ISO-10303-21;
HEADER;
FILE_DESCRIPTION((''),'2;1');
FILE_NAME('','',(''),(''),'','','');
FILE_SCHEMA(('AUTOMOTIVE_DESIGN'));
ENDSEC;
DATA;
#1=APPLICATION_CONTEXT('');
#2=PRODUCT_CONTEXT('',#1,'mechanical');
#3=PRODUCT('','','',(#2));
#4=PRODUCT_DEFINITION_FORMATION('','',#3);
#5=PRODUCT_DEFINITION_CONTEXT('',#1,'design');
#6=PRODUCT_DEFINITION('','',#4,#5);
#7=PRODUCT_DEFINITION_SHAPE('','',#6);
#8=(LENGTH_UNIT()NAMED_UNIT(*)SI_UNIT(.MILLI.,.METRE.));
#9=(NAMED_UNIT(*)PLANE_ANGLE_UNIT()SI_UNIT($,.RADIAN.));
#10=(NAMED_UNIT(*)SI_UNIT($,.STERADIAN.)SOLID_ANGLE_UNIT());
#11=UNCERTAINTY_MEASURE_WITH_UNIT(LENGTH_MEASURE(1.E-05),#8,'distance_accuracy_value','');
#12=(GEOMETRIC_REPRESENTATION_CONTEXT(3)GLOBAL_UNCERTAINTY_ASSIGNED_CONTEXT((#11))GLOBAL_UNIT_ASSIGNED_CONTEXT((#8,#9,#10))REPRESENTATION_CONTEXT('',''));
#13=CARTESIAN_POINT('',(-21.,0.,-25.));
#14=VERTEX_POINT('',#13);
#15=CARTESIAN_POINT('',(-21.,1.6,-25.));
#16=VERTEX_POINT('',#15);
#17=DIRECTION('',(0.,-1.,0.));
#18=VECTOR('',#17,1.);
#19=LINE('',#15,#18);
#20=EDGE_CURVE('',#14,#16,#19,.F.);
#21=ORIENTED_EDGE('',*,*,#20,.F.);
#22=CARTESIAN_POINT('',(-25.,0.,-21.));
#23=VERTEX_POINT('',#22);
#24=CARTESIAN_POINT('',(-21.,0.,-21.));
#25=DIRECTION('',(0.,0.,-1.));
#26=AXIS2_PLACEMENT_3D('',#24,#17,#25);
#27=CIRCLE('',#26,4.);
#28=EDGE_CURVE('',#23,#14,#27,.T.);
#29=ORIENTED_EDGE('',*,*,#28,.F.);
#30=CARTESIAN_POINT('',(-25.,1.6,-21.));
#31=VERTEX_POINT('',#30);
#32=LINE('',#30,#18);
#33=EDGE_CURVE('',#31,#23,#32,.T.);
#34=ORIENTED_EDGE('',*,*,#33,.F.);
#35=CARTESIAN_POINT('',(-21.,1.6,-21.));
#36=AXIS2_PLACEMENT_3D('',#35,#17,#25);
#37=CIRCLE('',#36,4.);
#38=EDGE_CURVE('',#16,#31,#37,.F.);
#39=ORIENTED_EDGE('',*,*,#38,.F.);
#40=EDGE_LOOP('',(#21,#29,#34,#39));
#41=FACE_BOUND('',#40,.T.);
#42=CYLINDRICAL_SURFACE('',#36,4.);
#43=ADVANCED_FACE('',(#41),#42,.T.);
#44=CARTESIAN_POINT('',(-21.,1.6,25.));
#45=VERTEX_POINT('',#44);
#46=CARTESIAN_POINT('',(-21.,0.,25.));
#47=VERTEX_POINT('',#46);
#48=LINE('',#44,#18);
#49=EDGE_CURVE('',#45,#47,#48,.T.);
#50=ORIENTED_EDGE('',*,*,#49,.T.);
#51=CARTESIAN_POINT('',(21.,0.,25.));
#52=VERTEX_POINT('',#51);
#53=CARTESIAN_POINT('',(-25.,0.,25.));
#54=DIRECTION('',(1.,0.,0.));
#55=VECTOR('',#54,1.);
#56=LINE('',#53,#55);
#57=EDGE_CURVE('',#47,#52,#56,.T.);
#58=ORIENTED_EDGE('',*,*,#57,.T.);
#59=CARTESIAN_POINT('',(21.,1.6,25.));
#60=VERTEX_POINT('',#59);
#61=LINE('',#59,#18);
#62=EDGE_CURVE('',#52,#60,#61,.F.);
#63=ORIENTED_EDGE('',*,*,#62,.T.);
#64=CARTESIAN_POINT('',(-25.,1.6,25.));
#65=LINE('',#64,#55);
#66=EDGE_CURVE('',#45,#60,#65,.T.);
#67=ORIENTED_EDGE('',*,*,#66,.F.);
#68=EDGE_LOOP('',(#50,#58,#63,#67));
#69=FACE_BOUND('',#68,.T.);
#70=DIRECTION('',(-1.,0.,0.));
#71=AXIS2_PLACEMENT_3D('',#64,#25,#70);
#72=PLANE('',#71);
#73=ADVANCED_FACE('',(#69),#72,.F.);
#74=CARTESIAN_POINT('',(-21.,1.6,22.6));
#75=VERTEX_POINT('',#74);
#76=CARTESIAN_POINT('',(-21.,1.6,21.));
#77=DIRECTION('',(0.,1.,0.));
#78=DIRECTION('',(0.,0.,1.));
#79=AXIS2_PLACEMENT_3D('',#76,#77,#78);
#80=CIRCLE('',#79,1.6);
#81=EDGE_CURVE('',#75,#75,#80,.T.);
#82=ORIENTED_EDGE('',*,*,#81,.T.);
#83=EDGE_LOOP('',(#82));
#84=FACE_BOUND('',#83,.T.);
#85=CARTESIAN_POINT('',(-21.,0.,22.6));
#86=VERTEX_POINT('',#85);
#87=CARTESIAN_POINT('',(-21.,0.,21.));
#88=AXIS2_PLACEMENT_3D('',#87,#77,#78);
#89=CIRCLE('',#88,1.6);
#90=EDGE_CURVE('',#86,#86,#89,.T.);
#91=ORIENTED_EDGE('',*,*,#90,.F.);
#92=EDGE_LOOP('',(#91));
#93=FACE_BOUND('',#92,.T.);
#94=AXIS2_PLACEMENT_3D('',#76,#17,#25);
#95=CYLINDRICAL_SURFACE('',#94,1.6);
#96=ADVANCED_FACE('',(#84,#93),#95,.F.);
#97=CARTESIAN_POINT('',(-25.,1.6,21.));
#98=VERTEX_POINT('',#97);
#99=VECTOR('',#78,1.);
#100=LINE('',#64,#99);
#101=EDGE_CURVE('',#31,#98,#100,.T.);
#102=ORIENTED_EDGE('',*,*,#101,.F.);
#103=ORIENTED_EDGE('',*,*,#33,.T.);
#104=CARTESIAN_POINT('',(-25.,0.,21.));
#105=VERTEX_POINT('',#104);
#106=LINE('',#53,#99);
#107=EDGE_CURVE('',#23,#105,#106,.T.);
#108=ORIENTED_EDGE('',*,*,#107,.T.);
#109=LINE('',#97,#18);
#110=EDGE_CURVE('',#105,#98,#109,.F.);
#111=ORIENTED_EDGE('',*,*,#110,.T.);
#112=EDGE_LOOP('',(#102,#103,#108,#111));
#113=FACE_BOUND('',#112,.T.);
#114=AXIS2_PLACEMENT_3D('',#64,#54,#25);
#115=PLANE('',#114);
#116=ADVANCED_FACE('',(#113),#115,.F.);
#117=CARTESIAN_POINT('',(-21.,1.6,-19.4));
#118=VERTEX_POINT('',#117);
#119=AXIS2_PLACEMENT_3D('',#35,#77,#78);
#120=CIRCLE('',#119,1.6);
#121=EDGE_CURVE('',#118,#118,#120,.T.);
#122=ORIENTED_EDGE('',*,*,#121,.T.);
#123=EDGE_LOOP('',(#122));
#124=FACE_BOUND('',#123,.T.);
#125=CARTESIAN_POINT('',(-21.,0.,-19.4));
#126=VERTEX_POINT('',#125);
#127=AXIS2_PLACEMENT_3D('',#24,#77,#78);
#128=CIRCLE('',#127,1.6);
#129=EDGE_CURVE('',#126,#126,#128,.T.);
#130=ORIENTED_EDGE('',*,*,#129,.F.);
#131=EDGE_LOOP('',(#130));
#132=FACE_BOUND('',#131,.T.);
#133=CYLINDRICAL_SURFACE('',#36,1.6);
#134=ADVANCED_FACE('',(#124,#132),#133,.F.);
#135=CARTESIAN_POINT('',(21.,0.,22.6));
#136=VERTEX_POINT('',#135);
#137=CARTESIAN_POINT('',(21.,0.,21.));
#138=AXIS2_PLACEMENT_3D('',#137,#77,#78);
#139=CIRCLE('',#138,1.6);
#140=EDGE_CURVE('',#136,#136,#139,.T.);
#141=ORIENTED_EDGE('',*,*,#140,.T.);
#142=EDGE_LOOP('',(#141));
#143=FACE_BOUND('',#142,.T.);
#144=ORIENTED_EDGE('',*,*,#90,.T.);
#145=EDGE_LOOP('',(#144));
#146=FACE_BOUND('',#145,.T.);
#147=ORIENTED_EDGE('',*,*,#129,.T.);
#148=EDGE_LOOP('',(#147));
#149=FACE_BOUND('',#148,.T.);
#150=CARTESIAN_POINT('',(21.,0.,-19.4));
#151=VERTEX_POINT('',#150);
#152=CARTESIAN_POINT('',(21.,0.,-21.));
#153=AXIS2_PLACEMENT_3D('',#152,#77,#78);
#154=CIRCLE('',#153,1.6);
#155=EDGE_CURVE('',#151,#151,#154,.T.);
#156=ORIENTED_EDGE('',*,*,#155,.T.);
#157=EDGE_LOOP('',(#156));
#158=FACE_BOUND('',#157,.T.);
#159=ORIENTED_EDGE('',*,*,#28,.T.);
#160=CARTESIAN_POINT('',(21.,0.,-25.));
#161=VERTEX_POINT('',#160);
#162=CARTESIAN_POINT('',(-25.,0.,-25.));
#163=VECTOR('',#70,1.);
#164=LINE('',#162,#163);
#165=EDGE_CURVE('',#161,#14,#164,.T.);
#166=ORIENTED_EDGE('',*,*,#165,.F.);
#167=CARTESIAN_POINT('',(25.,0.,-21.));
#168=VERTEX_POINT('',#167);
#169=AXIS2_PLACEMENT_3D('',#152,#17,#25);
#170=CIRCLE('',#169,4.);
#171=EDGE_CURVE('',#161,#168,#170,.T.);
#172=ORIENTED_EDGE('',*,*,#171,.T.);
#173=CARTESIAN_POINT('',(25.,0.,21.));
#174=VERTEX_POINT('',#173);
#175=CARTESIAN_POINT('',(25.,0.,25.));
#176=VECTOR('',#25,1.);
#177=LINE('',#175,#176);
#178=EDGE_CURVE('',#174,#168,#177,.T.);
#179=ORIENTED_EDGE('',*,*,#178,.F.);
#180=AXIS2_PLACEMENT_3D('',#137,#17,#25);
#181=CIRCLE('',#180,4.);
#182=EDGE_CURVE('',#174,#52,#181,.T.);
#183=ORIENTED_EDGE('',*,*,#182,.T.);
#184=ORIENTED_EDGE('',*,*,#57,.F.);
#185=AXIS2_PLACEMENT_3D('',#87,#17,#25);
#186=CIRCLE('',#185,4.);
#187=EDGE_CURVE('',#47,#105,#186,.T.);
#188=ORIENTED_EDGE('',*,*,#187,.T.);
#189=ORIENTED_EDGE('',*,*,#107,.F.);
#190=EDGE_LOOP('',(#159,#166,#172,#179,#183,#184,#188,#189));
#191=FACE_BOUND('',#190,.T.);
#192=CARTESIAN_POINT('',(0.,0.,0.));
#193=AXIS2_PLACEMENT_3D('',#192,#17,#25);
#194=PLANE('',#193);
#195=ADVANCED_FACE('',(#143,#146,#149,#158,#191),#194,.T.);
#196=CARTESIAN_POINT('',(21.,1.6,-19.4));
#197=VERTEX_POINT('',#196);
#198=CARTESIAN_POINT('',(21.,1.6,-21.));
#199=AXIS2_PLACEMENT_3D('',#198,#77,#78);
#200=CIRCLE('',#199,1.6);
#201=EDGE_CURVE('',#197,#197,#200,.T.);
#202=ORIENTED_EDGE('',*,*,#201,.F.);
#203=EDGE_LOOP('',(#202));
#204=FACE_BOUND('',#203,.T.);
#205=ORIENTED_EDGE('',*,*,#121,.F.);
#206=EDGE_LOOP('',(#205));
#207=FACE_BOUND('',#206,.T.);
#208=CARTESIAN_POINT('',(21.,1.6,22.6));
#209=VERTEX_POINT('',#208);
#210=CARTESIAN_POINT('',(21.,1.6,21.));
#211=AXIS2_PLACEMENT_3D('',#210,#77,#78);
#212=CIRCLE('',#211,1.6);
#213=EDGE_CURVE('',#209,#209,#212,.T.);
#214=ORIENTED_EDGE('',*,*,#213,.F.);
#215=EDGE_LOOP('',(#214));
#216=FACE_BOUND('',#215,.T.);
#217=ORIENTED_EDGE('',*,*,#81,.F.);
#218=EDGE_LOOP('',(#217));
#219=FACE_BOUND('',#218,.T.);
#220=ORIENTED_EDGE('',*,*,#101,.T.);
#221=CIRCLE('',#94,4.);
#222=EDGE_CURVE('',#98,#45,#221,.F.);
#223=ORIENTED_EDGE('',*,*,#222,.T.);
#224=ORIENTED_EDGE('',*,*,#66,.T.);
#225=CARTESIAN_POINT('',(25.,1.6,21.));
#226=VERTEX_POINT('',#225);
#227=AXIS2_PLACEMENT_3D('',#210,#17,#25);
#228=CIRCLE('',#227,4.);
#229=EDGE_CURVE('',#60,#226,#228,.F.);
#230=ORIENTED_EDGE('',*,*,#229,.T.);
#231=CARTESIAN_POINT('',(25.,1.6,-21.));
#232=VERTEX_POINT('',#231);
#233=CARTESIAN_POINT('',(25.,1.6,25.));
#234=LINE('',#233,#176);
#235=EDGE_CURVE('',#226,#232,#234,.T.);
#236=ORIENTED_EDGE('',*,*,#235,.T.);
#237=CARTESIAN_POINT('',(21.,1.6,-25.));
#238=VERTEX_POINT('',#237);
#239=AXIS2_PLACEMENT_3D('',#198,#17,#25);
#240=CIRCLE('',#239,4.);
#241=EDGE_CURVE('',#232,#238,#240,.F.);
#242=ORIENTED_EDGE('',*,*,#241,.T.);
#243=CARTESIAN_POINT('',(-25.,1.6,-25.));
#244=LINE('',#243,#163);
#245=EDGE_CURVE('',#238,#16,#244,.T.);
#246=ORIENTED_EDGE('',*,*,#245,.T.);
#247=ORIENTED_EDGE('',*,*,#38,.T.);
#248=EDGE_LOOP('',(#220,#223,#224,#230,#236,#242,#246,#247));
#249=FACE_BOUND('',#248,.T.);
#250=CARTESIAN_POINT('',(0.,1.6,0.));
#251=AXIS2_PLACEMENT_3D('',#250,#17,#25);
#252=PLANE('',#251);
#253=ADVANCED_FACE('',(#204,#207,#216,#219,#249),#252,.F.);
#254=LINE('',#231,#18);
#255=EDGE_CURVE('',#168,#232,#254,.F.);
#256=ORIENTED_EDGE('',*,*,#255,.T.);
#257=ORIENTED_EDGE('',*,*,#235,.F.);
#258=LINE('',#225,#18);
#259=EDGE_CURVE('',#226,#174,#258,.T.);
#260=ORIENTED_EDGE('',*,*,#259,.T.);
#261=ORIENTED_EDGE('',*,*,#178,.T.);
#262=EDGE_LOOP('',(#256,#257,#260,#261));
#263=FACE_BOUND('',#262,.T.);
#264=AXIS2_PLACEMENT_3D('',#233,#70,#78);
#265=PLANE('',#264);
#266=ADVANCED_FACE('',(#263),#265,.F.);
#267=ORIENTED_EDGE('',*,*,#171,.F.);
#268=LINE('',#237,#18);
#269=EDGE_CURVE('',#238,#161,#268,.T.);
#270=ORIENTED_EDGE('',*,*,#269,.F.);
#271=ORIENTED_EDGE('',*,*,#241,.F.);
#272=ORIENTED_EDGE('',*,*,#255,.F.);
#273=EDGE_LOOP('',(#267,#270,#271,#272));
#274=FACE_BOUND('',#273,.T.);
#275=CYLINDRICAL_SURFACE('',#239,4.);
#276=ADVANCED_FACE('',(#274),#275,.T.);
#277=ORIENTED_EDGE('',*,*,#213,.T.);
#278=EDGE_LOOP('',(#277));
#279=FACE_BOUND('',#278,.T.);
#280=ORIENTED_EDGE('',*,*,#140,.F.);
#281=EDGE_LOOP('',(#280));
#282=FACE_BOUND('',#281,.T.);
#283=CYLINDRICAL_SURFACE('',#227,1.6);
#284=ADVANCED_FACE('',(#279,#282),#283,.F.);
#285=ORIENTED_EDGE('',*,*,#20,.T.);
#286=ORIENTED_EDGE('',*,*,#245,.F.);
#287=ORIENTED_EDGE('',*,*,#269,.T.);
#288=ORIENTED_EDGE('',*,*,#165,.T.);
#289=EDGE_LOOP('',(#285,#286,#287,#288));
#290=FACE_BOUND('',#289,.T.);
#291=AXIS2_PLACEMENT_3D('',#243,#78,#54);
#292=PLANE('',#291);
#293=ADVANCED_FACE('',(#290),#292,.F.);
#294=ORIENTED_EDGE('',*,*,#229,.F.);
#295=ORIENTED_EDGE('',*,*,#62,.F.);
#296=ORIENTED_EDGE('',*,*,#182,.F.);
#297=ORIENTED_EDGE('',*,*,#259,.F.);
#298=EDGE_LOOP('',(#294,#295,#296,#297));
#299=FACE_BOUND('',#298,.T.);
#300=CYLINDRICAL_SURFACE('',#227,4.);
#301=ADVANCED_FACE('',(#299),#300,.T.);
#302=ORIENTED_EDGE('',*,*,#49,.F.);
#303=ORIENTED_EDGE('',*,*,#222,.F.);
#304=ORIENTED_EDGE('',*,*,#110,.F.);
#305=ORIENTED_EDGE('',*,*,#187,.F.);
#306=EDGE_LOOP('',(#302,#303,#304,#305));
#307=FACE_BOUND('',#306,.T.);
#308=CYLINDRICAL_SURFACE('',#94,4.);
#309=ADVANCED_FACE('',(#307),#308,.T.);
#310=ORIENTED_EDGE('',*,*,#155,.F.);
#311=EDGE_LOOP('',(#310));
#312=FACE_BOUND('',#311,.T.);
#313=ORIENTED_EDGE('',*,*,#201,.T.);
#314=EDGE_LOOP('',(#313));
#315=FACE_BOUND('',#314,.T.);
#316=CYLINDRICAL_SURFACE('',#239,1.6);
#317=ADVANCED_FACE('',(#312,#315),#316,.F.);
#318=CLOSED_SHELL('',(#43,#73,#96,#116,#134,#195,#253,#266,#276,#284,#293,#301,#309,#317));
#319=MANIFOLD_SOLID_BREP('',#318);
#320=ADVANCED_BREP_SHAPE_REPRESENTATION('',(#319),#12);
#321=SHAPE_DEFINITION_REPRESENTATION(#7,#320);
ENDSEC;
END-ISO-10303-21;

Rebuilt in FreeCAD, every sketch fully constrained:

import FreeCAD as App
import Part
import Sketcher

V = App.Vector


def edges_at(feature, points):
    """Names of the edges that pass closest to the given points."""
    edges = feature.Shape.Edges
    near = lambda p: min(range(len(edges)), key=lambda i: edges[i].distToShape(Part.Vertex(*p))[0])
    return sorted({f"Edge{near(p) + 1}" for p in points})


def add_polygon(sketch, points):
    """Adds a closed chain of lines whose ends are joined by coincident constraints."""
    first, n = sketch.GeometryCount, len(points)
    for a, b in zip(points, points[1:] + points[:1]):
        sketch.addGeometry(Part.LineSegment(App.Vector(*a, 0), App.Vector(*b, 0)), False)
    for i in range(n):
        sketch.addConstraint(Sketcher.Constraint("Coincident", first + i, 2, first + (i + 1) % n, 1))

doc = App.newDocument("Part")
body = doc.addObject("PartDesign::Body", "Body")

# Sketch on XZ plane
sketch1 = body.newObject("Sketcher::SketchObject", "Sketch")
sketch1.AttachmentSupport = (doc.getObject("XZ_Plane"), [""])
sketch1.MapMode = "FlatFace"
add_polygon(sketch1, [(-25, -25), (-25, 25), (25, 25), (25, -25)])  # lines 0-3
sketch1.addGeometry(Part.Circle(V(-21, 21, 0), V(0, 0, 1), 1.6), False)  # 4
sketch1.addGeometry(Part.Circle(V(21, 21, 0), V(0, 0, 1), 1.6), False)  # 5
sketch1.addGeometry(Part.Circle(V(-21, -21, 0), V(0, 0, 1), 1.6), False)  # 6
sketch1.addGeometry(Part.Circle(V(21, -21, 0), V(0, 0, 1), 1.6), False)  # 7
sketch1.addConstraint([
    Sketcher.Constraint("Vertical", 0),
    Sketcher.Constraint("Horizontal", 1),
    Sketcher.Constraint("Vertical", 2),
    Sketcher.Constraint("Horizontal", 3),
    Sketcher.Constraint("Equal", 4, 5),
    Sketcher.Constraint("Equal", 5, 6),
    Sketcher.Constraint("Equal", 6, 7),
    Sketcher.Constraint("Symmetric", 5, 3, 6, 3, -1, 1),
    Sketcher.Constraint("Symmetric", 4, 3, 7, 3, -1, 1),
    Sketcher.Constraint("Symmetric", 0, 2, 2, 2, -1, 1),
    Sketcher.Constraint("Symmetric", 4, 3, 5, 3, -2),
    Sketcher.Constraint("Equal", 3, 0),
    Sketcher.Constraint("Diameter", 4, 3.2),
    Sketcher.Constraint("DistanceX", 1, 1, 1, 2, 50.0),
    Sketcher.Constraint("DistanceX", 4, 3, -1, 1, 21.0),
    Sketcher.Constraint("DistanceY", -1, 1, 4, 3, 21.0),
])
pad1 = body.newObject("PartDesign::Pad", "Pad")
pad1.Profile = sketch1
pad1.Length = 1.6
pad1.Reversed = True
doc.recompute()

fillet = body.newObject("PartDesign::Fillet", "Fillet")
fillet.Base = (pad1, edges_at(pad1, [
    (25, 0.8, 25),
    (-25, 0.8, 25),
    (-25, 0.8, -25),
    (25, 0.8, -25),
]))
fillet.Radius = 4

doc.recompute()
